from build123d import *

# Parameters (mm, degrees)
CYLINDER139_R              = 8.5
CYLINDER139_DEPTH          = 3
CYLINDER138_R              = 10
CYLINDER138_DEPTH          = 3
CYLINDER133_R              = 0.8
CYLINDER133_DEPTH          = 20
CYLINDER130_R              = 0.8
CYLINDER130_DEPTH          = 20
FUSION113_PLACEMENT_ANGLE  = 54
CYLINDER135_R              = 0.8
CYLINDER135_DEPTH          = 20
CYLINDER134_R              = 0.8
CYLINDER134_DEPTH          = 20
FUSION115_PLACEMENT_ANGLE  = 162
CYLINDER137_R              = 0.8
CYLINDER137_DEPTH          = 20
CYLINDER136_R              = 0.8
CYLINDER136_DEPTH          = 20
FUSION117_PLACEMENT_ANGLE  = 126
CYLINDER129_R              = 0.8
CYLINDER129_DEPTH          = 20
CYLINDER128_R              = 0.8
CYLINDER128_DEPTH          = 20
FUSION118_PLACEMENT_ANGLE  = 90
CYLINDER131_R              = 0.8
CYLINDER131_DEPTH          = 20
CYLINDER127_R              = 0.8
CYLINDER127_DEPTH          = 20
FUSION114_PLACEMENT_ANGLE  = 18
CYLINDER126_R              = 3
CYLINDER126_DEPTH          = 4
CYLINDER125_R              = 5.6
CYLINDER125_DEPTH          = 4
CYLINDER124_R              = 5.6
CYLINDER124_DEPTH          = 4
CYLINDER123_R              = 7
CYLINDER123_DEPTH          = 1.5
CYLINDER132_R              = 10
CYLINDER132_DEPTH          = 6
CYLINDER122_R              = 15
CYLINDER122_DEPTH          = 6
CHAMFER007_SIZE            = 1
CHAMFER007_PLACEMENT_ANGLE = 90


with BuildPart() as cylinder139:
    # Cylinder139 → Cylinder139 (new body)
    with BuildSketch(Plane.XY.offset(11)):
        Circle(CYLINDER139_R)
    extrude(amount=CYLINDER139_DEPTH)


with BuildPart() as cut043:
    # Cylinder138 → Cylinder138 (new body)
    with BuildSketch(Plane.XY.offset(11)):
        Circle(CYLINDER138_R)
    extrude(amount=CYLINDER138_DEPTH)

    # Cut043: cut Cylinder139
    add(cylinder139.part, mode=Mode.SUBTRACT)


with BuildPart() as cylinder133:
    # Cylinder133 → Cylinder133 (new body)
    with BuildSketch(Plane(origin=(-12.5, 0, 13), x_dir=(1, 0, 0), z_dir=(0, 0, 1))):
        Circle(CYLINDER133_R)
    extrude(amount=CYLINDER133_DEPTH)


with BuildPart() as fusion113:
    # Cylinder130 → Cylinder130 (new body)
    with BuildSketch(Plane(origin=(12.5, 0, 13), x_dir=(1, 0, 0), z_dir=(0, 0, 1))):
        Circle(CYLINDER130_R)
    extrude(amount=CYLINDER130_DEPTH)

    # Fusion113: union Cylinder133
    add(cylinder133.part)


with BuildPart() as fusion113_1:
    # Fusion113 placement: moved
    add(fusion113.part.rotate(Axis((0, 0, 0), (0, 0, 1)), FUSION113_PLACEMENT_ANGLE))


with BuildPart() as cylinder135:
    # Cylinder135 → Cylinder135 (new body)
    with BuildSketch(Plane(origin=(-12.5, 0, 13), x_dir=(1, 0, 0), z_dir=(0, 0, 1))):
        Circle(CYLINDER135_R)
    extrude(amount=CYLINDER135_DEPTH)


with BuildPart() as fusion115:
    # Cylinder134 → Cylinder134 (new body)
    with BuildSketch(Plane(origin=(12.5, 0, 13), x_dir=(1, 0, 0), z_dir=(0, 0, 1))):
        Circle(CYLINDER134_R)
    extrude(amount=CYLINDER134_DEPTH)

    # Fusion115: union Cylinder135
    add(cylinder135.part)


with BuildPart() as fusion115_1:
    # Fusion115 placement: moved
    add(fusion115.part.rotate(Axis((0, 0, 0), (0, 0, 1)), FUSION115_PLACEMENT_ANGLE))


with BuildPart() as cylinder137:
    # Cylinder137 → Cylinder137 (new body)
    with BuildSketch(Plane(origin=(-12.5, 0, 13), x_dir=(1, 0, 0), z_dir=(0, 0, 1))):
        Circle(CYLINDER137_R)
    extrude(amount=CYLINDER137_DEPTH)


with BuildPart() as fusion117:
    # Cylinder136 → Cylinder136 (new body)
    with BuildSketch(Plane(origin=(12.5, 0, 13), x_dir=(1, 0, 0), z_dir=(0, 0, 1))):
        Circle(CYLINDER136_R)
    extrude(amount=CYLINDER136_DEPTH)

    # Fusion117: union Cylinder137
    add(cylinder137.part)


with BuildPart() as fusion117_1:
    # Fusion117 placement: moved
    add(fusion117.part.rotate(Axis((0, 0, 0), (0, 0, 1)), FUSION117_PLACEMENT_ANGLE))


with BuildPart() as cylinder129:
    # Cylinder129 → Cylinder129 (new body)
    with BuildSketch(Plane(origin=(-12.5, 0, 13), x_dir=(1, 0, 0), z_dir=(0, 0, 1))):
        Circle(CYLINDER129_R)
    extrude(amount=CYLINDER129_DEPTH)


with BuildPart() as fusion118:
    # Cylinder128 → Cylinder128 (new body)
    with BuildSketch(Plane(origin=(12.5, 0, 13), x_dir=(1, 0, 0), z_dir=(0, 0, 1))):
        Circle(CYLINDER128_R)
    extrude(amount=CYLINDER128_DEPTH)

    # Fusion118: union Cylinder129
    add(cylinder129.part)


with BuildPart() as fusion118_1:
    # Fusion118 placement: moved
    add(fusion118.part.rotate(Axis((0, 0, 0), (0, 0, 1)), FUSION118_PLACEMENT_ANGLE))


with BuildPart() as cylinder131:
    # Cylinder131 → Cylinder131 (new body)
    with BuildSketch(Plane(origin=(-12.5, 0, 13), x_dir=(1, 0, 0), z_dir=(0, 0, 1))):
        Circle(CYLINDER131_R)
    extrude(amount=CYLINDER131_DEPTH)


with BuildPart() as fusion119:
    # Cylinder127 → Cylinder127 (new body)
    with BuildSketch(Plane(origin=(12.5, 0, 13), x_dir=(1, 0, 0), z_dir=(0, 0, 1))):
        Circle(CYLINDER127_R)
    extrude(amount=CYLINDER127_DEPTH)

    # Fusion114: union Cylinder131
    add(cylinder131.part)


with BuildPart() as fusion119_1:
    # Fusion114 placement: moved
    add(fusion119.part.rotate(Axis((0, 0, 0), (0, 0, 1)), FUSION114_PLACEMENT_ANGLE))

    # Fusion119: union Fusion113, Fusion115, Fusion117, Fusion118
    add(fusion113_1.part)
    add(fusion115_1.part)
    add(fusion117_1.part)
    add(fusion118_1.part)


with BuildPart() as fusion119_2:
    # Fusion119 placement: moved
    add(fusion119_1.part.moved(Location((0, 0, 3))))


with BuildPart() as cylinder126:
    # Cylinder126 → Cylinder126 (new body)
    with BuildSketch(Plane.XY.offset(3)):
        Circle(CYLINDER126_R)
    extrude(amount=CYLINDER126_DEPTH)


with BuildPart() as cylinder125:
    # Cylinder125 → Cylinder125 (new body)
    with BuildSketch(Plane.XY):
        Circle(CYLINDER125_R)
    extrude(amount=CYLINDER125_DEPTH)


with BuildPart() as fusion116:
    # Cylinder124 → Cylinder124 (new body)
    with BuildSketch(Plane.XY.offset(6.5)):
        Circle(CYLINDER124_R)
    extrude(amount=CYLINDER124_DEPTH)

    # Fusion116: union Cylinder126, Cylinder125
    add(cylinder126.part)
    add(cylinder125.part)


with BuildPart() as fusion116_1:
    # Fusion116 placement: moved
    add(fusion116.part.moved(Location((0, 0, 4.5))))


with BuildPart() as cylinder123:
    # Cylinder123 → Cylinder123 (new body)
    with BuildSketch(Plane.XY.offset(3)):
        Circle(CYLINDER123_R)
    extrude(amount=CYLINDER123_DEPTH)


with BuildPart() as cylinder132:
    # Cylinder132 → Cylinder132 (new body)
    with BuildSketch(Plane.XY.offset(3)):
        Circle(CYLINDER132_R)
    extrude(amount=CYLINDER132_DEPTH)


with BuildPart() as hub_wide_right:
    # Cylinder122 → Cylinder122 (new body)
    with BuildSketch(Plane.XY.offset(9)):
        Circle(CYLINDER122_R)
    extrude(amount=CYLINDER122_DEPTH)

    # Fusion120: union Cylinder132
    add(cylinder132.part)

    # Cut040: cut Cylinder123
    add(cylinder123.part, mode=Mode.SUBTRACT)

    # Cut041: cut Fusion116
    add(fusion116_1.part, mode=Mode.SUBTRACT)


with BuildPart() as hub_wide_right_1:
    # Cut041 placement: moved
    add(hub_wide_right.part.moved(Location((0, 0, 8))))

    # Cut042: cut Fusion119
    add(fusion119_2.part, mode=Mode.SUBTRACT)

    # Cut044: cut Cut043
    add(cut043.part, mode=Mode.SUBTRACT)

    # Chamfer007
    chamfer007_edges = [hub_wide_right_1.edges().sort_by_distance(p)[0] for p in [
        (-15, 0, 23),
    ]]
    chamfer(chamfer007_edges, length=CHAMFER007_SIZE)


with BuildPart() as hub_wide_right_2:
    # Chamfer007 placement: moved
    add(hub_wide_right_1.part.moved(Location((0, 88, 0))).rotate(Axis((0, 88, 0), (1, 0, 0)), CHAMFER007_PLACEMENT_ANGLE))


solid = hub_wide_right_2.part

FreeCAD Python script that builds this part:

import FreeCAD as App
import Part
import Sketcher

V = App.Vector
Q = App.Units.Quantity


def edges_at(feature, points):
    """Names of the edges that pass closest to the given points."""
    edges = feature.Shape.Edges
    near = lambda p: min(range(len(edges)), key=lambda i: edges[i].distToShape(Part.Vertex(*p))[0])
    return sorted({f"Edge{near(p) + 1}" for p in points})

doc = App.newDocument("Part")
body = doc.addObject("PartDesign::Body", "Body")

sketch1 = doc.addObject("Sketcher::SketchObject", "Sketch")
body.addObject(sketch1)
sketch1.AttachmentSupport = (doc.XY_Plane, [""])
sketch1.MapMode = "FlatFace"
sketch1.AttachmentOffset = App.Placement(V(0, 0, 11), App.Rotation())
sketch1.addGeometry(Part.Circle(V(0, 0, 0), V(0, 0, 1), 8), False)
sketch1.addConstraint([
    Sketcher.Constraint("Coincident", 0, 3, -1, 1),
    Sketcher.Constraint("Diameter", 0, Q("17 mm")),
])
pad1 = doc.addObject("PartDesign::Pad", "Pad")
body.addObject(pad1)
pad1.Profile = sketch1
pad1.Length = 3
body2 = doc.addObject("PartDesign::Body", "Body001")

sketch2 = doc.addObject("Sketcher::SketchObject", "Sketch001")
body2.addObject(sketch2)
sketch2.AttachmentSupport = (doc.getObject("XY_Plane001"), [""])
sketch2.MapMode = "FlatFace"
sketch2.AttachmentOffset = App.Placement(V(0, 0, 11), App.Rotation())
sketch2.addGeometry(Part.Circle(V(0, 0, 0), V(0, 0, 1), 10), False)
sketch2.addConstraint([
    Sketcher.Constraint("Coincident", 0, 3, -1, 1),
    Sketcher.Constraint("Diameter", 0, Q("20 mm")),
])
pad2 = doc.addObject("PartDesign::Pad", "Pad001")
body2.addObject(pad2)
pad2.Profile = sketch2
pad2.Length = 3
doc.recompute()

boolean = doc.addObject("PartDesign::Boolean", "Boolean")
body2.addObject(boolean)
boolean.Type = "Cut"
boolean.addObjects([body])
body3 = doc.addObject("PartDesign::Body", "Body002")

sketch3 = doc.addObject("Sketcher::SketchObject", "Sketch002")
body3.addObject(sketch3)
sketch3.AttachmentSupport = (doc.getObject("XY_Plane002"), [""])
sketch3.MapMode = "FlatFace"
sketch3.AttachmentOffset = App.Placement(V(0, 0, 13), App.Rotation())
sketch3.addGeometry(Part.Circle(V(-12.5, 0, 0), V(0, 0, 1), 0.8), False)
sketch3.addConstraint([
    Sketcher.Constraint("PointOnObject", 0, 3, -1),
    Sketcher.Constraint("Diameter", 0, Q("1.6 mm")),
    Sketcher.Constraint("DistanceX", 0, 3, -1, 1, Q("12.5 mm")),
])
pad3 = doc.addObject("PartDesign::Pad", "Pad002")
body3.addObject(pad3)
pad3.Profile = sketch3
pad3.Length = 20
body4 = doc.addObject("PartDesign::Body", "Body003")
body4.AllowCompound = True

sketch4 = doc.addObject("Sketcher::SketchObject", "Sketch003")
body4.addObject(sketch4)
sketch4.AttachmentSupport = (doc.getObject("XY_Plane003"), [""])
sketch4.MapMode = "FlatFace"
sketch4.AttachmentOffset = App.Placement(V(0, 0, 13), App.Rotation())
sketch4.addGeometry(Part.Circle(V(12.5, 0, 0), V(0, 0, 1), 0.8), False)
sketch4.addConstraint([
    Sketcher.Constraint("PointOnObject", 0, 3, -1),
    Sketcher.Constraint("Diameter", 0, Q("1.6 mm")),
    Sketcher.Constraint("DistanceX", -1, 1, 0, 3, Q("12.5 mm")),
])
pad4 = doc.addObject("PartDesign::Pad", "Pad003")
body4.addObject(pad4)
pad4.Profile = sketch4
pad4.Length = 20
doc.recompute()

boolean2 = doc.addObject("PartDesign::Boolean", "Boolean001")
body4.addObject(boolean2)
boolean2.Type = "Fuse"
boolean2.addObjects([body3])
body5 = doc.addObject("PartDesign::Body", "Body004")
body5.AllowCompound = True
doc.recompute()

body4.Placement = App.Placement(V(0, 0, 0), App.Rotation(V(0, 0, 1), 54))
boolean3 = doc.addObject("PartDesign::Boolean", "Boolean002")
body5.addObject(boolean3)
boolean3.Type = "Fuse"
boolean3.addObjects([body4])
body6 = doc.addObject("PartDesign::Body", "Body005")

sketch5 = doc.addObject("Sketcher::SketchObject", "Sketch004")
body6.addObject(sketch5)
sketch5.AttachmentSupport = (doc.getObject("XY_Plane005"), [""])
sketch5.MapMode = "FlatFace"
sketch5.AttachmentOffset = App.Placement(V(0, 0, 13), App.Rotation())
sketch5.addGeometry(Part.Circle(V(-12.5, 0, 0), V(0, 0, 1), 0.8), False)
sketch5.addConstraint([
    Sketcher.Constraint("PointOnObject", 0, 3, -1),
    Sketcher.Constraint("Diameter", 0, Q("1.6 mm")),
    Sketcher.Constraint("DistanceX", 0, 3, -1, 1, Q("12.5 mm")),
])
pad5 = doc.addObject("PartDesign::Pad", "Pad004")
body6.addObject(pad5)
pad5.Profile = sketch5
pad5.Length = 20
body7 = doc.addObject("PartDesign::Body", "Body006")
body7.AllowCompound = True

sketch6 = doc.addObject("Sketcher::SketchObject", "Sketch005")
body7.addObject(sketch6)
sketch6.AttachmentSupport = (doc.getObject("XY_Plane006"), [""])
sketch6.MapMode = "FlatFace"
sketch6.AttachmentOffset = App.Placement(V(0, 0, 13), App.Rotation())
sketch6.addGeometry(Part.Circle(V(12.5, 0, 0), V(0, 0, 1), 0.8), False)
sketch6.addConstraint([
    Sketcher.Constraint("PointOnObject", 0, 3, -1),
    Sketcher.Constraint("Diameter", 0, Q("1.6 mm")),
    Sketcher.Constraint("DistanceX", -1, 1, 0, 3, Q("12.5 mm")),
])
pad6 = doc.addObject("PartDesign::Pad", "Pad005")
body7.addObject(pad6)
pad6.Profile = sketch6
pad6.Length = 20
doc.recompute()

boolean4 = doc.addObject("PartDesign::Boolean", "Boolean003")
body7.addObject(boolean4)
boolean4.Type = "Fuse"
boolean4.addObjects([body6])
body8 = doc.addObject("PartDesign::Body", "Body007")
body8.AllowCompound = True
doc.recompute()

body7.Placement = App.Placement(V(0, 0, 0), App.Rotation(V(0, 0, 1), 162))
boolean5 = doc.addObject("PartDesign::Boolean", "Boolean004")
body8.addObject(boolean5)
boolean5.Type = "Fuse"
boolean5.addObjects([body7])
body9 = doc.addObject("PartDesign::Body", "Body008")

sketch7 = doc.addObject("Sketcher::SketchObject", "Sketch006")
body9.addObject(sketch7)
sketch7.AttachmentSupport = (doc.getObject("XY_Plane008"), [""])
sketch7.MapMode = "FlatFace"
sketch7.AttachmentOffset = App.Placement(V(0, 0, 13), App.Rotation())
sketch7.addGeometry(Part.Circle(V(-12.5, 0, 0), V(0, 0, 1), 0.8), False)
sketch7.addConstraint([
    Sketcher.Constraint("PointOnObject", 0, 3, -1),
    Sketcher.Constraint("Diameter", 0, Q("1.6 mm")),
    Sketcher.Constraint("DistanceX", 0, 3, -1, 1, Q("12.5 mm")),
])
pad7 = doc.addObject("PartDesign::Pad", "Pad006")
body9.addObject(pad7)
pad7.Profile = sketch7
pad7.Length = 20
body10 = doc.addObject("PartDesign::Body", "Body009")
body10.AllowCompound = True

sketch8 = doc.addObject("Sketcher::SketchObject", "Sketch007")
body10.addObject(sketch8)
sketch8.AttachmentSupport = (doc.getObject("XY_Plane009"), [""])
sketch8.MapMode = "FlatFace"
sketch8.AttachmentOffset = App.Placement(V(0, 0, 13), App.Rotation())
sketch8.addGeometry(Part.Circle(V(12.5, 0, 0), V(0, 0, 1), 0.8), False)
sketch8.addConstraint([
    Sketcher.Constraint("PointOnObject", 0, 3, -1),
    Sketcher.Constraint("Diameter", 0, Q("1.6 mm")),
    Sketcher.Constraint("DistanceX", -1, 1, 0, 3, Q("12.5 mm")),
])
pad8 = doc.addObject("PartDesign::Pad", "Pad007")
body10.addObject(pad8)
pad8.Profile = sketch8
pad8.Length = 20
doc.recompute()

boolean6 = doc.addObject("PartDesign::Boolean", "Boolean005")
body10.addObject(boolean6)
boolean6.Type = "Fuse"
boolean6.addObjects([body9])
body11 = doc.addObject("PartDesign::Body", "Body010")
body11.AllowCompound = True
doc.recompute()

body10.Placement = App.Placement(V(0, 0, 0), App.Rotation(V(0, 0, 1), 126))
boolean7 = doc.addObject("PartDesign::Boolean", "Boolean006")
body11.addObject(boolean7)
boolean7.Type = "Fuse"
boolean7.addObjects([body10])
body12 = doc.addObject("PartDesign::Body", "Body011")

sketch9 = doc.addObject("Sketcher::SketchObject", "Sketch008")
body12.addObject(sketch9)
sketch9.AttachmentSupport = (doc.getObject("XY_Plane011"), [""])
sketch9.MapMode = "FlatFace"
sketch9.AttachmentOffset = App.Placement(V(0, 0, 13), App.Rotation())
sketch9.addGeometry(Part.Circle(V(-12.5, 0, 0), V(0, 0, 1), 0.8), False)
sketch9.addConstraint([
    Sketcher.Constraint("PointOnObject", 0, 3, -1),
    Sketcher.Constraint("Diameter", 0, Q("1.6 mm")),
    Sketcher.Constraint("DistanceX", 0, 3, -1, 1, Q("12.5 mm")),
])
pad9 = doc.addObject("PartDesign::Pad", "Pad008")
body12.addObject(pad9)
pad9.Profile = sketch9
pad9.Length = 20
body13 = doc.addObject("PartDesign::Body", "Body012")
body13.AllowCompound = True

sketch10 = doc.addObject("Sketcher::SketchObject", "Sketch009")
body13.addObject(sketch10)
sketch10.AttachmentSupport = (doc.getObject("XY_Plane012"), [""])
sketch10.MapMode = "FlatFace"
sketch10.AttachmentOffset = App.Placement(V(0, 0, 13), App.Rotation())
sketch10.addGeometry(Part.Circle(V(12.5, 0, 0), V(0, 0, 1), 0.8), False)
sketch10.addConstraint([
    Sketcher.Constraint("PointOnObject", 0, 3, -1),
    Sketcher.Constraint("Diameter", 0, Q("1.6 mm")),
    Sketcher.Constraint("DistanceX", -1, 1, 0, 3, Q("12.5 mm")),
])
pad10 = doc.addObject("PartDesign::Pad", "Pad009")
body13.addObject(pad10)
pad10.Profile = sketch10
pad10.Length = 20
doc.recompute()

boolean8 = doc.addObject("PartDesign::Boolean", "Boolean007")
body13.addObject(boolean8)
boolean8.Type = "Fuse"
boolean8.addObjects([body12])
body14 = doc.addObject("PartDesign::Body", "Body013")
body14.AllowCompound = True
doc.recompute()

body13.Placement = App.Placement(V(0, 0, 0), App.Rotation(V(0, 0, 1), 90))
boolean9 = doc.addObject("PartDesign::Boolean", "Boolean008")
body14.addObject(boolean9)
boolean9.Type = "Fuse"
boolean9.addObjects([body13])
body15 = doc.addObject("PartDesign::Body", "Body014")

sketch11 = doc.addObject("Sketcher::SketchObject", "Sketch010")
body15.addObject(sketch11)
sketch11.AttachmentSupport = (doc.getObject("XY_Plane014"), [""])
sketch11.MapMode = "FlatFace"
sketch11.AttachmentOffset = App.Placement(V(0, 0, 13), App.Rotation())
sketch11.addGeometry(Part.Circle(V(-12.5, 0, 0), V(0, 0, 1), 0.8), False)
sketch11.addConstraint([
    Sketcher.Constraint("PointOnObject", 0, 3, -1),
    Sketcher.Constraint("Diameter", 0, Q("1.6 mm")),
    Sketcher.Constraint("DistanceX", 0, 3, -1, 1, Q("12.5 mm")),
])
pad11 = doc.addObject("PartDesign::Pad", "Pad010")
body15.addObject(pad11)
pad11.Profile = sketch11
pad11.Length = 20
body16 = doc.addObject("PartDesign::Body", "Body015")
body16.AllowCompound = True

sketch12 = doc.addObject("Sketcher::SketchObject", "Sketch011")
body16.addObject(sketch12)
sketch12.AttachmentSupport = (doc.getObject("XY_Plane015"), [""])
sketch12.MapMode = "FlatFace"
sketch12.AttachmentOffset = App.Placement(V(0, 0, 13), App.Rotation())
sketch12.addGeometry(Part.Circle(V(12.5, 0, 0), V(0, 0, 1), 0.8), False)
sketch12.addConstraint([
    Sketcher.Constraint("PointOnObject", 0, 3, -1),
    Sketcher.Constraint("Diameter", 0, Q("1.6 mm")),
    Sketcher.Constraint("DistanceX", -1, 1, 0, 3, Q("12.5 mm")),
])
pad12 = doc.addObject("PartDesign::Pad", "Pad011")
body16.addObject(pad12)
pad12.Profile = sketch12
pad12.Length = 20
doc.recompute()

boolean10 = doc.addObject("PartDesign::Boolean", "Boolean009")
body16.addObject(boolean10)
boolean10.Type = "Fuse"
boolean10.addObjects([body15])
body17 = doc.addObject("PartDesign::Body", "Body016")
body17.AllowCompound = True
doc.recompute()

body16.Placement = App.Placement(V(0, 0, 0), App.Rotation(V(0, 0, 1), 18))
boolean11 = doc.addObject("PartDesign::Boolean", "Boolean010")
body17.addObject(boolean11)
boolean11.Type = "Fuse"
boolean11.addObjects([body16])
doc.recompute()

boolean12 = doc.addObject("PartDesign::Boolean", "Boolean011")
body17.addObject(boolean12)
boolean12.Type = "Fuse"
boolean12.addObjects([body5])
doc.recompute()

boolean13 = doc.addObject("PartDesign::Boolean", "Boolean012")
body17.addObject(boolean13)
boolean13.Type = "Fuse"
boolean13.addObjects([body8])
doc.recompute()

boolean14 = doc.addObject("PartDesign::Boolean", "Boolean013")
body17.addObject(boolean14)
boolean14.Type = "Fuse"
boolean14.addObjects([body11])
doc.recompute()

boolean15 = doc.addObject("PartDesign::Boolean", "Boolean014")
body17.addObject(boolean15)
boolean15.Type = "Fuse"
boolean15.addObjects([body14])
body18 = doc.addObject("PartDesign::Body", "Body017")
body18.AllowCompound = True
doc.recompute()

body17.Placement = App.Placement(V(0, 0, 3), App.Rotation(V(0, 0, 1), 0))
boolean16 = doc.addObject("PartDesign::Boolean", "Boolean015")
body18.addObject(boolean16)
boolean16.Type = "Fuse"
boolean16.addObjects([body17])
body19 = doc.addObject("PartDesign::Body", "Body018")

sketch13 = doc.addObject("Sketcher::SketchObject", "Sketch012")
body19.addObject(sketch13)
sketch13.AttachmentSupport = (doc.getObject("XY_Plane018"), [""])
sketch13.MapMode = "FlatFace"
sketch13.AttachmentOffset = App.Placement(V(0, 0, 3), App.Rotation())
sketch13.addGeometry(Part.Circle(V(0, 0, 0), V(0, 0, 1), 3), False)
sketch13.addConstraint([
    Sketcher.Constraint("Coincident", 0, 3, -1, 1),
    Sketcher.Constraint("Diameter", 0, Q("6 mm")),
])
pad13 = doc.addObject("PartDesign::Pad", "Pad012")
body19.addObject(pad13)
pad13.Profile = sketch13
pad13.Length = 4
body20 = doc.addObject("PartDesign::Body", "Body019")

sketch14 = doc.addObject("Sketcher::SketchObject", "Sketch013")
body20.addObject(sketch14)
sketch14.AttachmentSupport = (doc.getObject("XY_Plane019"), [""])
sketch14.MapMode = "FlatFace"
sketch14.addGeometry(Part.Circle(V(0, 0, 0), V(0, 0, 1), 6), False)
sketch14.addConstraint([
    Sketcher.Constraint("Coincident", 0, 3, -1, 1),
    Sketcher.Constraint("Diameter", 0, Q("11.2 mm")),
])
pad14 = doc.addObject("PartDesign::Pad", "Pad013")
body20.addObject(pad14)
pad14.Profile = sketch14
pad14.Length = 4
body21 = doc.addObject("PartDesign::Body", "Body020")

sketch15 = doc.addObject("Sketcher::SketchObject", "Sketch014")
body21.addObject(sketch15)
sketch15.AttachmentSupport = (doc.getObject("XY_Plane020"), [""])
sketch15.MapMode = "FlatFace"
sketch15.AttachmentOffset = App.Placement(V(0, 0, 6.5), App.Rotation())
sketch15.addGeometry(Part.Circle(V(0, 0, 0), V(0, 0, 1), 6), False)
sketch15.addConstraint([
    Sketcher.Constraint("Coincident", 0, 3, -1, 1),
    Sketcher.Constraint("Diameter", 0, Q("11.2 mm")),
])
pad15 = doc.addObject("PartDesign::Pad", "Pad014")
body21.addObject(pad15)
pad15.Profile = sketch15
pad15.Length = 4
doc.recompute()

boolean17 = doc.addObject("PartDesign::Boolean", "Boolean016")
body21.addObject(boolean17)
boolean17.Type = "Fuse"
boolean17.addObjects([body19])
doc.recompute()

boolean18 = doc.addObject("PartDesign::Boolean", "Boolean017")
body21.addObject(boolean18)
boolean18.Type = "Fuse"
boolean18.addObjects([body20])
body22 = doc.addObject("PartDesign::Body", "Body021")
doc.recompute()

body21.Placement = App.Placement(V(0, 0, 4.5), App.Rotation(V(0, 0, 1), 0))
boolean19 = doc.addObject("PartDesign::Boolean", "Boolean018")
body22.addObject(boolean19)
boolean19.Type = "Fuse"
boolean19.addObjects([body21])
body23 = doc.addObject("PartDesign::Body", "Body022")

sketch16 = doc.addObject("Sketcher::SketchObject", "Sketch015")
body23.addObject(sketch16)
sketch16.AttachmentSupport = (doc.getObject("XY_Plane022"), [""])
sketch16.MapMode = "FlatFace"
sketch16.AttachmentOffset = App.Placement(V(0, 0, 3), App.Rotation())
sketch16.addGeometry(Part.Circle(V(0, 0, 0), V(0, 0, 1), 7), False)
sketch16.addConstraint([
    Sketcher.Constraint("Coincident", 0, 3, -1, 1),
    Sketcher.Constraint("Diameter", 0, Q("14 mm")),
])
pad16 = doc.addObject("PartDesign::Pad", "Pad015")
body23.addObject(pad16)
pad16.Profile = sketch16
pad16.Length = 1.5
body24 = doc.addObject("PartDesign::Body", "Body023")

sketch17 = doc.addObject("Sketcher::SketchObject", "Sketch016")
body24.addObject(sketch17)
sketch17.AttachmentSupport = (doc.getObject("XY_Plane023"), [""])
sketch17.MapMode = "FlatFace"
sketch17.AttachmentOffset = App.Placement(V(0, 0, 3), App.Rotation())
sketch17.addGeometry(Part.Circle(V(0, 0, 0), V(0, 0, 1), 10), False)
sketch17.addConstraint([
    Sketcher.Constraint("Coincident", 0, 3, -1, 1),
    Sketcher.Constraint("Diameter", 0, Q("20 mm")),
])
pad17 = doc.addObject("PartDesign::Pad", "Pad016")
body24.addObject(pad17)
pad17.Profile = sketch17
pad17.Length = 6
body25 = doc.addObject("PartDesign::Body", "Body024")

sketch18 = doc.addObject("Sketcher::SketchObject", "Sketch017")
body25.addObject(sketch18)
sketch18.AttachmentSupport = (doc.getObject("XY_Plane024"), [""])
sketch18.MapMode = "FlatFace"
sketch18.AttachmentOffset = App.Placement(V(0, 0, 9), App.Rotation())
sketch18.addGeometry(Part.Circle(V(0, 0, 0), V(0, 0, 1), 15), False)
sketch18.addConstraint([
    Sketcher.Constraint("Coincident", 0, 3, -1, 1),
    Sketcher.Constraint("Diameter", 0, Q("30 mm")),
])
pad18 = doc.addObject("PartDesign::Pad", "Pad017")
body25.addObject(pad18)
pad18.Profile = sketch18
pad18.Length = 6
doc.recompute()

boolean20 = doc.addObject("PartDesign::Boolean", "Boolean019")
body25.addObject(boolean20)
boolean20.Type = "Fuse"
boolean20.addObjects([body24])
doc.recompute()

boolean21 = doc.addObject("PartDesign::Boolean", "Boolean020")
body25.addObject(boolean21)
boolean21.Type = "Cut"
boolean21.addObjects([body23])
doc.recompute()

boolean22 = doc.addObject("PartDesign::Boolean", "Boolean021")
body25.addObject(boolean22)
boolean22.Type = "Cut"
boolean22.addObjects([body22])
body26 = doc.addObject("PartDesign::Body", "Body025")
doc.recompute()

body25.Placement = App.Placement(V(0, 0, 8), App.Rotation(V(0, 0, 1), 0))
boolean23 = doc.addObject("PartDesign::Boolean", "Boolean022")
body26.addObject(boolean23)
boolean23.Type = "Fuse"
boolean23.addObjects([body25])
doc.recompute()

boolean24 = doc.addObject("PartDesign::Boolean", "Boolean023")
body26.addObject(boolean24)
boolean24.Type = "Cut"
boolean24.addObjects([body18])
doc.recompute()

boolean25 = doc.addObject("PartDesign::Boolean", "Boolean024")
body26.addObject(boolean25)
boolean25.Type = "Cut"
boolean25.addObjects([body2])
doc.recompute()

chamfer = doc.addObject("PartDesign::Chamfer", "Chamfer")
body26.addObject(chamfer)
chamfer.Base = (boolean25, edges_at(boolean25, [(-15, 0, 23)]))
chamfer.Size = 1
body27 = doc.addObject("PartDesign::Body", "Body026")
doc.recompute()

body26.Placement = App.Placement(V(0, 88, 0), App.Rotation(V(1, 0, 0), 90))
boolean26 = doc.addObject("PartDesign::Boolean", "Boolean025")
body27.addObject(boolean26)
boolean26.Type = "Fuse"
boolean26.addObjects([body26])

doc.recompute()
